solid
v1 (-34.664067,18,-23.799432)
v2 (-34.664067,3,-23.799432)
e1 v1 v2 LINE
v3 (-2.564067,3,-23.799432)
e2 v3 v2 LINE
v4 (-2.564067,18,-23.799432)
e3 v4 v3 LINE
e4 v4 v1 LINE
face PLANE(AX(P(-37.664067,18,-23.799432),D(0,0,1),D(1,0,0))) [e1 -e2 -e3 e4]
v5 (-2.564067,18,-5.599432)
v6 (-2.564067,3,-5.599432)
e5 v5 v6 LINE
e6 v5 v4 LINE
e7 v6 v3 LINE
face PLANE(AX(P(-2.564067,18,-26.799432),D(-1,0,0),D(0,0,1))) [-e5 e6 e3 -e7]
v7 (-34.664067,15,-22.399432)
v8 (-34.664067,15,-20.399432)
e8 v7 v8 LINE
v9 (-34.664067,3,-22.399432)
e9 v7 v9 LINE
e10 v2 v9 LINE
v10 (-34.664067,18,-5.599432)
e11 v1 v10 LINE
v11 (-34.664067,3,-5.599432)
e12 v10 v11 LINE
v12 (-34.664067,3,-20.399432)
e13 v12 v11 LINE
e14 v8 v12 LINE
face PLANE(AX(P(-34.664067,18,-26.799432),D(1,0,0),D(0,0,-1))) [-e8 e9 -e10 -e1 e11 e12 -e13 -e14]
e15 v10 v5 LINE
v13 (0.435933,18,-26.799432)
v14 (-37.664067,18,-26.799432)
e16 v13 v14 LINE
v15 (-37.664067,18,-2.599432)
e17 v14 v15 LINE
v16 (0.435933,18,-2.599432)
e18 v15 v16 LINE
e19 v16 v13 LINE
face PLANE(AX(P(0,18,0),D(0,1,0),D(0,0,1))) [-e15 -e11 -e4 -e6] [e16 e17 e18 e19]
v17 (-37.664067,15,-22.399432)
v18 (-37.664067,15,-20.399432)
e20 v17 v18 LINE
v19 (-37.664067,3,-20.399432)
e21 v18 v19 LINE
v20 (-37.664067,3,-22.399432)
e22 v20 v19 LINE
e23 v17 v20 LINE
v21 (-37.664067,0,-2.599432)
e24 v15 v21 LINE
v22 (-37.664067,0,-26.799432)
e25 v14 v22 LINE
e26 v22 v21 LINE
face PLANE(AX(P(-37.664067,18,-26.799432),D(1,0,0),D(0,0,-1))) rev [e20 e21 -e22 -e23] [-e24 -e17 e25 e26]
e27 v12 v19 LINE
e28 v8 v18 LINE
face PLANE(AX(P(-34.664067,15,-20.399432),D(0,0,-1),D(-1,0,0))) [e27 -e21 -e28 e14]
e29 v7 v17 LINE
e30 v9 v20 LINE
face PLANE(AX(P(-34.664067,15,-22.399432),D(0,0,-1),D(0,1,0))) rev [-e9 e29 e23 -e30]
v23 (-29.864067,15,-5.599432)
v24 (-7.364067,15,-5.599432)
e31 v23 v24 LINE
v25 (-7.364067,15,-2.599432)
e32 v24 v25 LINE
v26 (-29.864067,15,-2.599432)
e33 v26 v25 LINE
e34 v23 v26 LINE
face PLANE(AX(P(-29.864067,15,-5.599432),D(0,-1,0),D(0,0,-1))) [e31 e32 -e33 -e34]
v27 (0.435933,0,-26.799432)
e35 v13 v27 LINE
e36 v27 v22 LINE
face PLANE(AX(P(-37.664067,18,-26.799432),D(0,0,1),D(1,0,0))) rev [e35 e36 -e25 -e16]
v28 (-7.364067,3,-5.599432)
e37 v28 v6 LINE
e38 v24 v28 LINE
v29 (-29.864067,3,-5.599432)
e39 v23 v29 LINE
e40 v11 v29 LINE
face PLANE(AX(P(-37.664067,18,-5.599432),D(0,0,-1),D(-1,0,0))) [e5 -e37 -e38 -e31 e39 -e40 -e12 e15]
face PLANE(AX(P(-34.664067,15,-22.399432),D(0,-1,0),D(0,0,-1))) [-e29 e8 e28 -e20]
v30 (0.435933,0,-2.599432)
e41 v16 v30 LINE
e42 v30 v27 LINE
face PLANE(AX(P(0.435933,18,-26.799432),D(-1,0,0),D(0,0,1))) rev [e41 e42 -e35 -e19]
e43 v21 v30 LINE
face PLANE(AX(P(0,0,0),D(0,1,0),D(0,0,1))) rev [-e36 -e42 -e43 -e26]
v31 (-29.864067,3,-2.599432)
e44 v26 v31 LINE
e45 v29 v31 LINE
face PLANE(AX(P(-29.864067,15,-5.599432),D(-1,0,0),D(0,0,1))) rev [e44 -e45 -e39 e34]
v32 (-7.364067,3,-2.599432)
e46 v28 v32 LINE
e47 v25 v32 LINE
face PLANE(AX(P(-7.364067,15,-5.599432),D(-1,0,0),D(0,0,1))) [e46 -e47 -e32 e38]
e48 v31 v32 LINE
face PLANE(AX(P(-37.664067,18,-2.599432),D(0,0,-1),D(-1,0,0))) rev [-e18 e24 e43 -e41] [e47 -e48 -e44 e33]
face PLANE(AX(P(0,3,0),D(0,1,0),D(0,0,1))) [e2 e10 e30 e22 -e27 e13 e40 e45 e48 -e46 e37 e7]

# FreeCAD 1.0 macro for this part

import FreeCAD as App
import Part
import Sketcher
from FreeCAD import Vector
Q = App.Units.Quantity


def faces_at(feature, points):
    """Names of the faces that lie closest to the given points."""
    faces = feature.Shape.Faces
    near = lambda p: min(range(len(faces)), key=lambda i: faces[i].distToShape(Part.Vertex(*p))[0])
    return sorted({f"Face{near(p) + 1}" for p in points})

doc = App.newDocument("Part")
body = doc.addObject("PartDesign::Body", "Body")

sketch1 = doc.addObject("Sketcher::SketchObject", "Sketch")
body.addObject(sketch1)
sketch1.AttachmentSupport = (doc.XZ_Plane, [""])
sketch1.MapMode = "FlatFace"
sketch1.addGeometry([
    Part.LineSegment(Vector(-37.664067, -26.799432, 0), Vector(-37.664067, -2.599432, 0)),
    Part.LineSegment(Vector(-37.664067, -2.599432, 0), Vector(0.435933, -2.599432, 0)),
    Part.LineSegment(Vector(0.435933, -2.599432, 0), Vector(0.435933, -26.799432, 0)),
    Part.LineSegment(Vector(0.435933, -26.799432, 0), Vector(-37.664067, -26.799432, 0)),
], False)
sketch1.addConstraint([
    Sketcher.Constraint("Coincident", 0, 2, 1, 1),
    Sketcher.Constraint("Coincident", 1, 2, 2, 1),
    Sketcher.Constraint("Coincident", 2, 2, 3, 1),
    Sketcher.Constraint("Coincident", 3, 2, 0, 1),
    Sketcher.Constraint("Vertical", 0),
    Sketcher.Constraint("Horizontal", 1),
    Sketcher.Constraint("Vertical", 2),
    Sketcher.Constraint("Horizontal", 3),
    Sketcher.Constraint("DistanceX", 1, 1, 1, 2, Q("38.1 mm")),
    Sketcher.Constraint("DistanceY", 0, 1, 0, 2, Q("24.2 mm")),
    Sketcher.Constraint("DistanceX", 0, 2, -1, 1, Q("37.664067 mm")),
    Sketcher.Constraint("DistanceY", 0, 2, -1, 1, Q("2.599432 mm")),
])
pad1 = doc.addObject("PartDesign::Pad", "Pad")
body.addObject(pad1)
pad1.Profile = sketch1
pad1.Length = 18
pad1.Reversed = True
doc.recompute()

thickness = doc.addObject("PartDesign::Thickness", "Thickness")
body.addObject(thickness)
thickness.Base = (pad1, faces_at(pad1, [(-18.614, 18, -14.699)]))
thickness.Value = 3
thickness.Reversed = True
thickness.Join = "Intersection"

sketch2 = doc.addObject("Sketcher::SketchObject", "Sketch001")
body.addObject(sketch2)
sketch2.AttachmentSupport = (doc.XY_Plane, [""])
sketch2.MapMode = "FlatFace"
sketch2.AttachmentOffset = App.Placement(Vector(0, 0, -2.599432), App.Rotation())
sketch2.addGeometry([
    Part.LineSegment(Vector(-29.864067, 15, 0), Vector(-29.864067, 3, 0)),
    Part.LineSegment(Vector(-29.864067, 3, 0), Vector(-7.364067, 3, 0)),
    Part.LineSegment(Vector(-7.364067, 3, 0), Vector(-7.364067, 15, 0)),
    Part.LineSegment(Vector(-7.364067, 15, 0), Vector(-29.864067, 15, 0)),
], False)
sketch2.addConstraint([
    Sketcher.Constraint("Coincident", 0, 2, 1, 1),
    Sketcher.Constraint("Coincident", 1, 2, 2, 1),
    Sketcher.Constraint("Coincident", 2, 2, 3, 1),
    Sketcher.Constraint("Coincident", 3, 2, 0, 1),
    Sketcher.Constraint("Vertical", 0),
    Sketcher.Constraint("Horizontal", 1),
    Sketcher.Constraint("Vertical", 2),
    Sketcher.Constraint("Horizontal", 3),
    Sketcher.Constraint("DistanceY", 0, 2, 0, 1, Q("12 mm")),
    Sketcher.Constraint("DistanceX", 1, 1, 1, 2, Q("22.5 mm")),
    Sketcher.Constraint("DistanceY", -1, 1, 0, 2, Q("3 mm")),
    Sketcher.Constraint("DistanceX", 0, 2, -1, 1, Q("29.864067 mm")),
])
pocket1 = doc.addObject("PartDesign::Pocket", "Pocket")
body.addObject(pocket1)
pocket1.Profile = sketch2
pocket1.Length = 3

sketch3 = doc.addObject("Sketcher::SketchObject", "Sketch002")
body.addObject(sketch3)
sketch3.AttachmentSupport = (doc.YZ_Plane, [""])
sketch3.MapMode = "FlatFace"
sketch3.AttachmentOffset = App.Placement(Vector(0, 0, -37.664067), App.Rotation())
sketch3.addGeometry([
    Part.LineSegment(Vector(15, -22.399432, 0), Vector(3, -22.399432, 0)),
    Part.LineSegment(Vector(3, -22.399432, 0), Vector(3, -20.399432, 0)),
    Part.LineSegment(Vector(3, -20.399432, 0), Vector(15, -20.399432, 0)),
    Part.LineSegment(Vector(15, -20.399432, 0), Vector(15, -22.399432, 0)),
], False)
sketch3.addConstraint([
    Sketcher.Constraint("Coincident", 0, 2, 1, 1),
    Sketcher.Constraint("Coincident", 1, 2, 2, 1),
    Sketcher.Constraint("Coincident", 2, 2, 3, 1),
    Sketcher.Constraint("Coincident", 3, 2, 0, 1),
    Sketcher.Constraint("Horizontal", 0),
    Sketcher.Constraint("Vertical", 1),
    Sketcher.Constraint("Horizontal", 2),
    Sketcher.Constraint("Vertical", 3),
    Sketcher.Constraint("DistanceX", 0, 2, 0, 1, Q("12 mm")),
    Sketcher.Constraint("DistanceY", 1, 1, 1, 2, Q("2 mm")),
    Sketcher.Constraint("DistanceX", -1, 1, 0, 2, Q("3 mm")),
    Sketcher.Constraint("DistanceY", 0, 2, -1, 1, Q("22.399432 mm")),
])
pocket2 = doc.addObject("PartDesign::Pocket", "Pocket001")
body.addObject(pocket2)
pocket2.Profile = sketch3
pocket2.Length = 3
pocket2.Reversed = True

doc.recompute()
